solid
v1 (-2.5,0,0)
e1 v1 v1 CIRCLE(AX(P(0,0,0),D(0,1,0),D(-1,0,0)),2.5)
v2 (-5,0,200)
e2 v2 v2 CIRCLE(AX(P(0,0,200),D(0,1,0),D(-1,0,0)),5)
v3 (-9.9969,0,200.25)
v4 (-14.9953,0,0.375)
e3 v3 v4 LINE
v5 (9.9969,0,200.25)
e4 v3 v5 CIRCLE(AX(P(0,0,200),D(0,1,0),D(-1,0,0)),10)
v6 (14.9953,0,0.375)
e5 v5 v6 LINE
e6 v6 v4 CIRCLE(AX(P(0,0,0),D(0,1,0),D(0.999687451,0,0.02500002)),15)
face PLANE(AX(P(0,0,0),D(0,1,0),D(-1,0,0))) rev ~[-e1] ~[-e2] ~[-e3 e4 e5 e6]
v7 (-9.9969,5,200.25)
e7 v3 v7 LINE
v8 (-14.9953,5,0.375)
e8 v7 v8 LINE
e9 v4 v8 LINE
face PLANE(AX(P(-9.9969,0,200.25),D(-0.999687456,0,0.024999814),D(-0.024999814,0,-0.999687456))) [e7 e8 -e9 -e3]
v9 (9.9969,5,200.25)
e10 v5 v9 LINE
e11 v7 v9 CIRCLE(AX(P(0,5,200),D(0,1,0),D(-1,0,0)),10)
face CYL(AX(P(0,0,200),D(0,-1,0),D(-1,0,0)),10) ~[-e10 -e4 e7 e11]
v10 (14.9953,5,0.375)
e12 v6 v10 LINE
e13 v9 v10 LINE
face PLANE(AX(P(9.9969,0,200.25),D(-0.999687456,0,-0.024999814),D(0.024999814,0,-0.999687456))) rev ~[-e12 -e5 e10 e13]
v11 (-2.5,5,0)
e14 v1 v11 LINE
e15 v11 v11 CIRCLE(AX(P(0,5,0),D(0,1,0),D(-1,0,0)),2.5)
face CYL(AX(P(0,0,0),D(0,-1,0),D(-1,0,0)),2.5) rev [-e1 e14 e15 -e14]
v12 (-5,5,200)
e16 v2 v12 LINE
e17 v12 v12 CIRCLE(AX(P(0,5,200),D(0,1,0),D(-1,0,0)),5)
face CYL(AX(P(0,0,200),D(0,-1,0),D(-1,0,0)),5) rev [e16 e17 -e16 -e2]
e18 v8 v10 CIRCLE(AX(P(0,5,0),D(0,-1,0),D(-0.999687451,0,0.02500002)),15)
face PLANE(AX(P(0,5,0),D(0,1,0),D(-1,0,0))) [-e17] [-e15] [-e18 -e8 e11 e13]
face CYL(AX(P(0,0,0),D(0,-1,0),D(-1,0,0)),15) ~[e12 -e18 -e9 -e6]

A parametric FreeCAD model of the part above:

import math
import FreeCAD as App
import Part
import Sketcher

doc = App.newDocument("Part")
body = doc.addObject("PartDesign::Body", "Body")

sketch1 = body.newObject("Sketcher::SketchObject", "Sketch")
sketch1.AttachmentSupport = (doc.getObject("XZ_Plane"), [""])
sketch1.MapMode = "FlatFace"
sketch1.addGeometry([
    Part.ArcOfCircle(Part.Circle(App.Vector(0, 0, 0), App.Vector(0, 0, 1), 15), math.radians(179), math.radians(361)),
    Part.LineSegment(App.Vector(-15, 0.4, 0), App.Vector(-10, 200.2, 0)),
    Part.ArcOfCircle(Part.Circle(App.Vector(0, 200, 0), App.Vector(0, 0, 1), 10), math.radians(1), math.radians(179)),
    Part.LineSegment(App.Vector(10, 200.2, 0), App.Vector(15, 0.4, 0)),
    Part.Circle(App.Vector(0, 0, 0), App.Vector(0, 0, 1), 2.5),
    Part.Circle(App.Vector(0, 200, 0), App.Vector(0, 0, 1), 5),
], False)
sketch1.addConstraint([
    Sketcher.Constraint("Tangent", 0, 1, 1, 1),
    Sketcher.Constraint("Tangent", 1, 2, 2, 2),
    Sketcher.Constraint("Tangent", 2, 1, 3, 1),
    Sketcher.Constraint("Tangent", 3, 2, 0, 2),
    Sketcher.Constraint("Coincident", 0, 3, -1, 1),
    Sketcher.Constraint("Coincident", 4, 3, -1, 1),
    Sketcher.Constraint("Coincident", 5, 3, 2, 3),
    Sketcher.Constraint("PointOnObject", 2, 3, -2),
    Sketcher.Constraint("Diameter", 4, 5.0),
    Sketcher.Constraint("Diameter", 5, 10.0),
    Sketcher.Constraint("Radius", 0, 15.0),
    Sketcher.Constraint("Radius", 2, 10.0),
    Sketcher.Constraint("DistanceY", -1, 1, 2, 3, 200.0),
])
pad1 = body.newObject("PartDesign::Pad", "Pad")
pad1.Profile = sketch1
pad1.Length = 5
pad1.Reversed = True

doc.recompute()
